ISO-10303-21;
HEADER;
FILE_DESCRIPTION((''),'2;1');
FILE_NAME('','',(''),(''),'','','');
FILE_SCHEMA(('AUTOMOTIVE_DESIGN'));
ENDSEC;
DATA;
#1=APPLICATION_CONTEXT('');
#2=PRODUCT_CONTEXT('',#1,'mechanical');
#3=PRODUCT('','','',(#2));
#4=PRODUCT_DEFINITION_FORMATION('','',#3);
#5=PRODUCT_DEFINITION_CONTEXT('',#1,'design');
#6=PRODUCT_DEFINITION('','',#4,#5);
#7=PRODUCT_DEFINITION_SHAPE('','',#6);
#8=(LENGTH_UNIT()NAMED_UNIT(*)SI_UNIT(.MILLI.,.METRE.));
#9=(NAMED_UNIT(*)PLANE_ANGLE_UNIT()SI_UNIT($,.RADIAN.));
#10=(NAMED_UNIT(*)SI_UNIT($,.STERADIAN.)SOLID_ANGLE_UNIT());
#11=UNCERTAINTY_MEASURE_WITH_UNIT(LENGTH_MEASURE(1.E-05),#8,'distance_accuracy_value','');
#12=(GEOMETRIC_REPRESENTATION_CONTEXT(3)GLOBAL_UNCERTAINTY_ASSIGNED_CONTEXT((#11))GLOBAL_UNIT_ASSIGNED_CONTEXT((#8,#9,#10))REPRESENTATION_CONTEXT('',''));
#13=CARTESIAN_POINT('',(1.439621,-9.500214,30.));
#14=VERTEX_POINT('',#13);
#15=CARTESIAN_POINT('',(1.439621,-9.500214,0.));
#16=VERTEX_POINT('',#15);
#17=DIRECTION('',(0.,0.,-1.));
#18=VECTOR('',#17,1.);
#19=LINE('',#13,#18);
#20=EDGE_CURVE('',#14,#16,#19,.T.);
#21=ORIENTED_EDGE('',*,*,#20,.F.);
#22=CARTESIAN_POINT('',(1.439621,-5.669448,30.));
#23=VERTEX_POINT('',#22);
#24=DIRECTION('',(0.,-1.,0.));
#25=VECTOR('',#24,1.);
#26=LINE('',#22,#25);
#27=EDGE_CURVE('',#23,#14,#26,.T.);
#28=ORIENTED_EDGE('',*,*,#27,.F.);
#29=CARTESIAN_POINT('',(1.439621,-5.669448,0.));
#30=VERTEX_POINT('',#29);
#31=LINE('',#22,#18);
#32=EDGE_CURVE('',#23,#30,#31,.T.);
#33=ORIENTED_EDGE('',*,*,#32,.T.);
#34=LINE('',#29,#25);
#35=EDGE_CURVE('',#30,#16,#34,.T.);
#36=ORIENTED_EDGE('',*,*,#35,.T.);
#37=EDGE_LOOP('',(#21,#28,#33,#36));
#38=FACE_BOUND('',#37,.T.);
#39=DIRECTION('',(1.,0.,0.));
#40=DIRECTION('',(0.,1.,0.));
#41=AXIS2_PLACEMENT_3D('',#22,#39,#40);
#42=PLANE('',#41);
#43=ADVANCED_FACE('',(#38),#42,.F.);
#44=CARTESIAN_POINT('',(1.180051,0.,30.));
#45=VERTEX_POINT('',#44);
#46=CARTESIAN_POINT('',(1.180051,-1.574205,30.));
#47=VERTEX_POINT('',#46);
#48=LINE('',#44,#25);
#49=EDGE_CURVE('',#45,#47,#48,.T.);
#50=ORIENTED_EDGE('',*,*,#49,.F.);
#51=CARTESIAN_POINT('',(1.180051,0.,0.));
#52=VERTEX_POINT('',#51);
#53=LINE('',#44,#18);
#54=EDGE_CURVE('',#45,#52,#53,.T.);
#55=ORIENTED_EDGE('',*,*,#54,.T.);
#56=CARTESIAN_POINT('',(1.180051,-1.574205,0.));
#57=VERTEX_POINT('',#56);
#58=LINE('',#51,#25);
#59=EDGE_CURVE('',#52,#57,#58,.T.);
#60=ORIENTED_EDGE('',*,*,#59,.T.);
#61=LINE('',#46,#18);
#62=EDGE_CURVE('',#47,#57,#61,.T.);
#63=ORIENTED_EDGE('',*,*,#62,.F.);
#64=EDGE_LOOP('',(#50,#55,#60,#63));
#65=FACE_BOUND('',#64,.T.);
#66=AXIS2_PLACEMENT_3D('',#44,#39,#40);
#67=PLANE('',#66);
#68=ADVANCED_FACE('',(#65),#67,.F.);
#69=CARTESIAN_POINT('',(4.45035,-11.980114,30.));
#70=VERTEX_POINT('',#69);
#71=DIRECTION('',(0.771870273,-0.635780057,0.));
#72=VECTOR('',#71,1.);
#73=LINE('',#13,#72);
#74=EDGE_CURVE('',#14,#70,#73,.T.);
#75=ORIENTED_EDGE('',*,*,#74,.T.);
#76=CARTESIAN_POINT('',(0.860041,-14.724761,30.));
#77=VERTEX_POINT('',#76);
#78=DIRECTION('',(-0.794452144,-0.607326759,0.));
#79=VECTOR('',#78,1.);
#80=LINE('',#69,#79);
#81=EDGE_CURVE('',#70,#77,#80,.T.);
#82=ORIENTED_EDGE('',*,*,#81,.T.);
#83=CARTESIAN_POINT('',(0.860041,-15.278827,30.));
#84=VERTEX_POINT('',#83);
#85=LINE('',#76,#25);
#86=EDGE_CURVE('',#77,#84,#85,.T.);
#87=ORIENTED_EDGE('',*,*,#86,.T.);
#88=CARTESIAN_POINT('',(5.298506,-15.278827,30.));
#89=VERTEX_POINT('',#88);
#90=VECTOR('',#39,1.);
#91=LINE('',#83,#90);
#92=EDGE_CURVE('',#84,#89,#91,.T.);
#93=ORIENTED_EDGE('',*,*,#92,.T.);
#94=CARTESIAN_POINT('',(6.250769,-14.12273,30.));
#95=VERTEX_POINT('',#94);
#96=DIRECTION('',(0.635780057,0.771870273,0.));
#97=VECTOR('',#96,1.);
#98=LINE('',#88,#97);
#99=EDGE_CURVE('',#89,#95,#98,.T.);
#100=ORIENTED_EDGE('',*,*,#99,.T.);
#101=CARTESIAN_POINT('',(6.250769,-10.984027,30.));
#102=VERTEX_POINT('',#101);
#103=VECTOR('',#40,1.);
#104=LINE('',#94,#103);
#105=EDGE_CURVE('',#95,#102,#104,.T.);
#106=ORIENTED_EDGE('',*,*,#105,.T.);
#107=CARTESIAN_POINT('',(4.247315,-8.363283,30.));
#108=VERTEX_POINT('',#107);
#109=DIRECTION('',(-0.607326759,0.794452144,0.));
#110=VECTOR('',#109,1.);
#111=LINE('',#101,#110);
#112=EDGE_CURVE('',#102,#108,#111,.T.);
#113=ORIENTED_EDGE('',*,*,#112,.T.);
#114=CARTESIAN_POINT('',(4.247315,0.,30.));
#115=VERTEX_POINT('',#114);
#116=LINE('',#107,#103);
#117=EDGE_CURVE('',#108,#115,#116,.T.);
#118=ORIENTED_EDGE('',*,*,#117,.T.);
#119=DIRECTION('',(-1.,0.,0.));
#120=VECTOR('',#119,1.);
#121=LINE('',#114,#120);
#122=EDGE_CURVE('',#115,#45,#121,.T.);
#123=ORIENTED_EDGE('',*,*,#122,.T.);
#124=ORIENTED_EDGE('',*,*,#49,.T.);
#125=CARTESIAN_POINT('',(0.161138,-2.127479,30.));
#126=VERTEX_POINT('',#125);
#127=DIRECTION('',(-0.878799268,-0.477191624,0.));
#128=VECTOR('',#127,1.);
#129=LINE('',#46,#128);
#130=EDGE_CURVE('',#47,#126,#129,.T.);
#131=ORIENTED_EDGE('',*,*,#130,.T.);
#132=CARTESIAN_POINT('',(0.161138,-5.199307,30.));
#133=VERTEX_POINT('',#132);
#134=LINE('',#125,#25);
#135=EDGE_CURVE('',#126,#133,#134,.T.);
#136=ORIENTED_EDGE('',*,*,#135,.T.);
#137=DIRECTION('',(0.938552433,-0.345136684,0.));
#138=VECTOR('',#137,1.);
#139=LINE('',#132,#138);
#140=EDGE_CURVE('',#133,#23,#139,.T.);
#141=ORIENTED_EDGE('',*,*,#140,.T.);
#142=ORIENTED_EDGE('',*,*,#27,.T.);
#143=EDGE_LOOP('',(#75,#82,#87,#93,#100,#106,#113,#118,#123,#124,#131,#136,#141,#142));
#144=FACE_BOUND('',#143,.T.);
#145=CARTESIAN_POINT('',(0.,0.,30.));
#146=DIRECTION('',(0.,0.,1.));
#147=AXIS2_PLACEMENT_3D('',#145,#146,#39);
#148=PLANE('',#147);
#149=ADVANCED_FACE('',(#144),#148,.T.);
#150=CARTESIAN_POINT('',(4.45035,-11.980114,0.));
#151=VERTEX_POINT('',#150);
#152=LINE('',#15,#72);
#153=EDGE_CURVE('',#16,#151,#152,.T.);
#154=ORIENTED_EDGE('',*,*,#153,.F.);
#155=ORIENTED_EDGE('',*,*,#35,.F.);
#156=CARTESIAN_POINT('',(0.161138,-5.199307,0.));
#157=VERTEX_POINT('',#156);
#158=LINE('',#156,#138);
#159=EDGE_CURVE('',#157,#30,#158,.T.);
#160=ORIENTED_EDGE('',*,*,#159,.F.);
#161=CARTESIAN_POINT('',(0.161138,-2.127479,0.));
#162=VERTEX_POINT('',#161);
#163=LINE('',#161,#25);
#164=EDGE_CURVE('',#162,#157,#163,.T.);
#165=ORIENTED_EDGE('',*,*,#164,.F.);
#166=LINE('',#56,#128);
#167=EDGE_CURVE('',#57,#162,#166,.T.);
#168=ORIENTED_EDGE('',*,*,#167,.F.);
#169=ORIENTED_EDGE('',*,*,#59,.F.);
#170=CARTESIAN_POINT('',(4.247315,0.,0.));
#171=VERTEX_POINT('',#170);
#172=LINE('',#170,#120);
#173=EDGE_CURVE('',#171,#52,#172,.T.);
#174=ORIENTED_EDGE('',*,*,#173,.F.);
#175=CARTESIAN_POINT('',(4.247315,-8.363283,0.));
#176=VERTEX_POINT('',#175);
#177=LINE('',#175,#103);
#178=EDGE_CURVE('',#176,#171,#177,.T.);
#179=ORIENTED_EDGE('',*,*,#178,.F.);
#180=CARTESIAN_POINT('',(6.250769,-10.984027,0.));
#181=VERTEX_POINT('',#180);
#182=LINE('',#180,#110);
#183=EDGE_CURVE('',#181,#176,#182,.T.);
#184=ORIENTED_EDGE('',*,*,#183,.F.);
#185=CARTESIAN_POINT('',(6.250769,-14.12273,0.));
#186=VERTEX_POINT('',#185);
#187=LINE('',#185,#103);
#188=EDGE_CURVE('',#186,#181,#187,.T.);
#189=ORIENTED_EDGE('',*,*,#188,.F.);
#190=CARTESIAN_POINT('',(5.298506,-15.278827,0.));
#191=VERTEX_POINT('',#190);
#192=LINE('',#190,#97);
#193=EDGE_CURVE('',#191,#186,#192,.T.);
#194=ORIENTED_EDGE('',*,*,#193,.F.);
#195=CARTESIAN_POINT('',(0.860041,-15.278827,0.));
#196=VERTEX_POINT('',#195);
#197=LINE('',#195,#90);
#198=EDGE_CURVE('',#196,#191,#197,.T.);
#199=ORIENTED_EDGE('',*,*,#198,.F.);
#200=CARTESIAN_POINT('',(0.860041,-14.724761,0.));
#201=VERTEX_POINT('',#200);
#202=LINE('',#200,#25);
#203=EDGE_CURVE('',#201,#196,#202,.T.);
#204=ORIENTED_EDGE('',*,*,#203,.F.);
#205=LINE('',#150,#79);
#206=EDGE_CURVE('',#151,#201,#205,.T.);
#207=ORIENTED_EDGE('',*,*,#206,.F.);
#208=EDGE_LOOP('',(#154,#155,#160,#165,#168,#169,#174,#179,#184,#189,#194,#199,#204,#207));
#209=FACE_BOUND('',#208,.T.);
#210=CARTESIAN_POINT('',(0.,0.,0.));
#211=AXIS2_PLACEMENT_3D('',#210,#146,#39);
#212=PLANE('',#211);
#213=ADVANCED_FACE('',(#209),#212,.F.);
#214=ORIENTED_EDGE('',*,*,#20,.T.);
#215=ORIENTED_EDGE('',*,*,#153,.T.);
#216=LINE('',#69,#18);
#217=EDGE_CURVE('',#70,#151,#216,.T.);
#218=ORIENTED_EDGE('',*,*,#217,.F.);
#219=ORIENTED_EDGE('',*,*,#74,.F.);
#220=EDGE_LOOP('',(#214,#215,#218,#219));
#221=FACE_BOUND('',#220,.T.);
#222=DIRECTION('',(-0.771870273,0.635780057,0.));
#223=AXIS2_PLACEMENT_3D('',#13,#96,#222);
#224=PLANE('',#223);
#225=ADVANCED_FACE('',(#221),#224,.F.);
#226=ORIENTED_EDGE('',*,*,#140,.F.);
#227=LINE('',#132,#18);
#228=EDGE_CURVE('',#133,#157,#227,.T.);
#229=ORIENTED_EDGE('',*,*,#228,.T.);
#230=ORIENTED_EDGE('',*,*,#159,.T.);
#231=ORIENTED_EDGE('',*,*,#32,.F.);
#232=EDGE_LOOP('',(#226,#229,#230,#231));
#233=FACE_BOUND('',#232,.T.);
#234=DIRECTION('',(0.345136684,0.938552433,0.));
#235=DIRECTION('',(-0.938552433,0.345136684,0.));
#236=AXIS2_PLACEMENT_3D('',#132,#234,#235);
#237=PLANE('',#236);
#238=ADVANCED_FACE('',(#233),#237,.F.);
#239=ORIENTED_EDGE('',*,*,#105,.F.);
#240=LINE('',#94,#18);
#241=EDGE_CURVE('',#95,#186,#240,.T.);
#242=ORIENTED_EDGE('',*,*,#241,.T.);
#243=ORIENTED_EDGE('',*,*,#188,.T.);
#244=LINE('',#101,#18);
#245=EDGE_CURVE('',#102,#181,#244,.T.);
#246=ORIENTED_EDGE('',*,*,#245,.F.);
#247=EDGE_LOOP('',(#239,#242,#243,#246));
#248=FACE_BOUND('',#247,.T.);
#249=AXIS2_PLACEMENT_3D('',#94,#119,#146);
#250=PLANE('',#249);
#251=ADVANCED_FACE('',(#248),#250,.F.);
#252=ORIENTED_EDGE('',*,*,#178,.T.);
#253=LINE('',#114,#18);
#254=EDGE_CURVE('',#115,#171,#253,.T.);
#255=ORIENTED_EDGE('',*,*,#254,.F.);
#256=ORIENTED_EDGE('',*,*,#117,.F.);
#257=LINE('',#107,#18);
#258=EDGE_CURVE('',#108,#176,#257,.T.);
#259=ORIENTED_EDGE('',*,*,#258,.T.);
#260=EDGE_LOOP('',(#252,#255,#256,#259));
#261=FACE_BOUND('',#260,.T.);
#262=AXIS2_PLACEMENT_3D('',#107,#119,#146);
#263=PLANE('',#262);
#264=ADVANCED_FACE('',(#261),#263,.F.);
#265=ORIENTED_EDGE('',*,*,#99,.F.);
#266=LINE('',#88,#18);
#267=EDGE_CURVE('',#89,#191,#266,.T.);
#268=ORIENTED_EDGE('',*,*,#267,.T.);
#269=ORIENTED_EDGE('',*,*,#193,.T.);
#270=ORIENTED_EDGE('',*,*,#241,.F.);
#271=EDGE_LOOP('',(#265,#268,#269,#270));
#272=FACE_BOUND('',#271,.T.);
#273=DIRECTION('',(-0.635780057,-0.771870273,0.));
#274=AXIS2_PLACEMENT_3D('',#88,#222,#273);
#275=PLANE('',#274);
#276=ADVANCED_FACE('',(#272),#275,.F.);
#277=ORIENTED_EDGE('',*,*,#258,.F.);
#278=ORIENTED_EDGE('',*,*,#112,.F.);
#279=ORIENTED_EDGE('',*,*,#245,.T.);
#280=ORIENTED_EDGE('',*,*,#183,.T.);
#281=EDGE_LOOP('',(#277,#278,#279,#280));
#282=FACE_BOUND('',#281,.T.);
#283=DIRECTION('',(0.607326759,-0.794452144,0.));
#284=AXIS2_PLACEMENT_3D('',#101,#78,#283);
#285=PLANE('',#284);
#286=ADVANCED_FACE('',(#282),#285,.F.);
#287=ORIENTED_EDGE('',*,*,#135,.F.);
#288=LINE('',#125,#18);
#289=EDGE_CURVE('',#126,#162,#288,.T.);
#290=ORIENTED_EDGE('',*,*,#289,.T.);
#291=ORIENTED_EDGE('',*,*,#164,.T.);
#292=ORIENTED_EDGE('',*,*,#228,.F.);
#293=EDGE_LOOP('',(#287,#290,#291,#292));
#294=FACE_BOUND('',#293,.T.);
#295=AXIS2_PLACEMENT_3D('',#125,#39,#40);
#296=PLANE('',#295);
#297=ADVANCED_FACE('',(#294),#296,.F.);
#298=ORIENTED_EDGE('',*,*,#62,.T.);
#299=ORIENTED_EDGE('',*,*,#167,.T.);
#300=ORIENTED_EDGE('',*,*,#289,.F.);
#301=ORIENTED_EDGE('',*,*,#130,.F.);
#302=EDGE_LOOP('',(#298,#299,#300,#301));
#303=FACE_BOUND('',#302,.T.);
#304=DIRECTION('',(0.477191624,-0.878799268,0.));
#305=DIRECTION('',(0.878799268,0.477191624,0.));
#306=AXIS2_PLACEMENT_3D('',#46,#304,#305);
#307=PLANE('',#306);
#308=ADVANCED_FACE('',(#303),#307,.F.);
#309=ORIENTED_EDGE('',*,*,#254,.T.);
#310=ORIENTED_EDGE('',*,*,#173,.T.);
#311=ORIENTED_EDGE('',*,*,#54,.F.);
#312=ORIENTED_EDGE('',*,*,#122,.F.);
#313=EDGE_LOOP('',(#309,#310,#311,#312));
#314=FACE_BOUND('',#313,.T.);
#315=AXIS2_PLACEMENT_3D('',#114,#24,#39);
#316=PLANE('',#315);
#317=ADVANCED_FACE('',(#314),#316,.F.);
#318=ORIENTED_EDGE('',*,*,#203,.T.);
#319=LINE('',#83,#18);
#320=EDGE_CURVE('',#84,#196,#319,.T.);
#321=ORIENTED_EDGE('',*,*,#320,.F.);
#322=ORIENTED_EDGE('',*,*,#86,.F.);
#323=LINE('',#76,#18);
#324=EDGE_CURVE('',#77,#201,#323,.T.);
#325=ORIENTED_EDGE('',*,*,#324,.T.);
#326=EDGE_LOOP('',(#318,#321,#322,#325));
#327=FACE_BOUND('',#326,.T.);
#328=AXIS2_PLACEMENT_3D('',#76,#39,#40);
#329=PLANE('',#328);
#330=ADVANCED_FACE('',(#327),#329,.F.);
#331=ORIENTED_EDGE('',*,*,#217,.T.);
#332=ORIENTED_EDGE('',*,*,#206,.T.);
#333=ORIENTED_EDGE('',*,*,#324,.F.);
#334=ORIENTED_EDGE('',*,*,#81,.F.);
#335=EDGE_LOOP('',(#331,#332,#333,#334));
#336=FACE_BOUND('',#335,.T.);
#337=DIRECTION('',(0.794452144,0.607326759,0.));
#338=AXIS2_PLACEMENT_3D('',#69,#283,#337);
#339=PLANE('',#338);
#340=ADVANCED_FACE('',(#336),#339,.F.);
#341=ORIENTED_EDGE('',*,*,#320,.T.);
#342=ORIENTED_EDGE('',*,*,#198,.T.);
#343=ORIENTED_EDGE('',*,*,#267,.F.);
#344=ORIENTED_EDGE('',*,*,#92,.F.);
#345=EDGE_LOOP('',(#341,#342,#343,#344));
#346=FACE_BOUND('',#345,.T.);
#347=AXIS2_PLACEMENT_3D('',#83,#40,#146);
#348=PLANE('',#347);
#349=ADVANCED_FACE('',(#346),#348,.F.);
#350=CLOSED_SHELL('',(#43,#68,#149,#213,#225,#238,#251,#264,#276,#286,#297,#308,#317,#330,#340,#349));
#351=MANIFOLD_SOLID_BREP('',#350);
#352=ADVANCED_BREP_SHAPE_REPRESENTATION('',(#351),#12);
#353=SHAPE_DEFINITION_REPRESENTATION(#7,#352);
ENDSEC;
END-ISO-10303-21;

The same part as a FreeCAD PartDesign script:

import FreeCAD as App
import Part
import Sketcher
from FreeCAD import Vector
Q = App.Units.Quantity


def add_polygon(sketch, points):
    """Adds a closed chain of lines whose ends are joined by coincident constraints."""
    first, n = sketch.GeometryCount, len(points)
    for a, b in zip(points, points[1:] + points[:1]):
        sketch.addGeometry(Part.LineSegment(App.Vector(*a, 0), App.Vector(*b, 0)), False)
    for i in range(n):
        sketch.addConstraint(Sketcher.Constraint("Coincident", first + i, 2, first + (i + 1) % n, 1))

doc = App.newDocument("Part")
params = doc.addObject("Spreadsheet::Sheet", "Params")
for row, (alias, value) in enumerate([
    ("pad1_length", "30 mm"),
], start=1):
    params.set(f"A{row}", alias)
    params.set(f"B{row}", "=" + value)
    params.setAlias(f"B{row}", alias)

body = doc.addObject("PartDesign::Body", "Body")

# Sketch on XY plane
sketch1 = body.newObject("Sketcher::SketchObject", "Sketch")
sketch1.AttachmentSupport = (doc.getObject("XY_Plane"), [""])
sketch1.MapMode = "FlatFace"
add_polygon(sketch1, [(0.2, -2.1), (0.2, -5.2), (1.4, -5.7), (1.4, -9.5), (4.5, -12), (0.9, -14.7), (0.9, -15.3), (5.3, -15.3), (6.3, -14.1), (6.3, -11), (4.2, -8.4), (4.2, 0), (1.2, 0), (1.2, -1.6)])  # lines 0-13
sketch1.addConstraint([
    Sketcher.Constraint("Vertical", 0),
    Sketcher.Constraint("Vertical", 2),
    Sketcher.Constraint("Vertical", 5),
    Sketcher.Constraint("Horizontal", 6),
    Sketcher.Constraint("Vertical", 8),
    Sketcher.Constraint("Vertical", 10),
    Sketcher.Constraint("Horizontal", 11),
    Sketcher.Constraint("Vertical", 12),
    Sketcher.Constraint("PointOnObject", 10, 2, -1),
    Sketcher.Constraint("Perpendicular", 3, 7),
    Sketcher.Constraint("Perpendicular", 4, 9),
    Sketcher.Constraint("DistanceY", 0, 2, 0, 1, Q("3.071828 mm")),
    Sketcher.Constraint("DistanceY", 3, 2, 2, 2, Q("2.479901 mm")),
    Sketcher.Constraint("DistanceY", 6, 2, 8, 2, Q("4.2948 mm")),
    Sketcher.Constraint("DistanceX", 6, 1, 6, 2, Q("4.438465 mm")),
    Sketcher.Constraint("DistanceX", 11, 2, 11, 1, Q("3.067264 mm")),
    Sketcher.Constraint("DistanceY", 2, 2, 2, 1, Q("3.830766 mm")),
    Sketcher.Constraint("DistanceY", 5, 2, 5, 1, Q("0.554066 mm")),
    Sketcher.Constraint("DistanceY", 8, 1, 8, 2, Q("3.138703 mm")),
    Sketcher.Constraint("DistanceY", 10, 1, 10, 2, Q("8.363283 mm")),
    Sketcher.Constraint("DistanceY", 12, 2, 12, 1, Q("1.574205 mm")),
    Sketcher.Constraint("DistanceX", -1, 1, 0, 2, Q("0.161138 mm")),
    Sketcher.Constraint("DistanceX", -1, 1, 1, 2, Q("1.439621 mm")),
    Sketcher.Constraint("DistanceX", -1, 1, 3, 2, Q("4.45035 mm")),
    Sketcher.Constraint("DistanceX", -1, 1, 4, 2, Q("0.860041 mm")),
    Sketcher.Constraint("DistanceY", 4, 2, -1, 1, Q("14.724761 mm")),
    Sketcher.Constraint("DistanceX", -1, 1, 11, 2, Q("1.180051 mm")),
    Sketcher.Constraint("DistanceY", 13, 2, -1, 1, Q("2.127479 mm")),
])
pad1 = body.newObject("PartDesign::Pad", "Pad")
pad1.Profile = sketch1
pad1.setExpression("Length", "Params.pad1_length")

doc.recompute()
